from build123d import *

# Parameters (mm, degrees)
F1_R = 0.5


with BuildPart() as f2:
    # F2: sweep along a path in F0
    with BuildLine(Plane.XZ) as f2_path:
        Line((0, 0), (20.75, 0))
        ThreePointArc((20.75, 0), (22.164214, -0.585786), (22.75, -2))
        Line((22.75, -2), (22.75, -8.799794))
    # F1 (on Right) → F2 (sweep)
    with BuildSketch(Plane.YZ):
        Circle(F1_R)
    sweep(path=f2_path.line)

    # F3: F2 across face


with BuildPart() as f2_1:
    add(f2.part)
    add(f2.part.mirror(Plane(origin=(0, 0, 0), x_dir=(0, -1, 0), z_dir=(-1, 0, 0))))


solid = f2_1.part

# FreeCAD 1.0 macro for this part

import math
import FreeCAD as App
import Part
import Sketcher

V = App.Vector
Q = App.Units.Quantity

doc = App.newDocument("Part")
body = doc.addObject("PartDesign::Body", "Body")

sketch1 = body.newObject("Sketcher::SketchObject", "Sketch")
sketch1.AttachmentSupport = (doc.getObject("YZ_Plane"), [""])
sketch1.MapMode = "FlatFace"
sketch1.addGeometry(Part.Circle(V(0, 0, 0), V(0, 0, 1), 0.5), False)
sketch1.addConstraint([
    Sketcher.Constraint("Coincident", 0, 3, -1, 1),
    Sketcher.Constraint("Diameter", 0, Q("1 mm")),
])

sketch2 = body.newObject("Sketcher::SketchObject", "Sketch001")
sketch2.AttachmentSupport = (doc.getObject("XZ_Plane"), [""])
sketch2.MapMode = "FlatFace"
sketch2.addGeometry([
    Part.LineSegment(V(0, 0, 0), V(20.75, 0, 0)),
    Part.ArcOfCircle(Part.Circle(V(20.750001, -1.999999, 0), V(0, 0, 1), 1.999999), math.radians(-0.000043), math.radians(90.000043)),
    Part.LineSegment(V(22.75, -2, 0), V(22.75, -8.799794, 0)),
], False)
sketch2.addConstraint([
    Sketcher.Constraint("Tangent", 0, 2, 1, 2),
    Sketcher.Constraint("Tangent", 1, 1, 2, 1),
    Sketcher.Constraint("Horizontal", 0),
    Sketcher.Constraint("Vertical", 2),
    Sketcher.Constraint("Coincident", 0, 1, -1, 1),
    Sketcher.Constraint("Radius", 1, Q("1.999999 mm")),
    Sketcher.Constraint("DistanceX", 0, 1, 0, 2, Q("20.75 mm")),
    Sketcher.Constraint("DistanceY", 2, 2, 2, 1, Q("6.799794 mm")),
])
doc.recompute()

additivepipe = body.newObject("PartDesign::AdditivePipe", "AdditivePipe")
additivepipe.Profile = sketch1
additivepipe.Spine = (sketch2, ["Edge1", "Edge2", "Edge3"])
body2 = doc.addObject("PartDesign::Body", "Body001")
doc.recompute()

body2.BaseFeature = body
doc.recompute()

mirroring = doc.addObject("Part::Mirroring", "Mirroring")
mirroring.Source = body
mirroring.Base = V(0, 0, 0)
mirroring.Normal = V(-1, 0, 0)
body3 = doc.addObject("PartDesign::Body", "Body002")
body3.BaseFeature = mirroring
boolean = body2.newObject("PartDesign::Boolean", "Boolean")
boolean.Type = "Fuse"
boolean.addObjects([body3])
doc.recompute()
mirroring.Visibility = False

doc.recompute()
